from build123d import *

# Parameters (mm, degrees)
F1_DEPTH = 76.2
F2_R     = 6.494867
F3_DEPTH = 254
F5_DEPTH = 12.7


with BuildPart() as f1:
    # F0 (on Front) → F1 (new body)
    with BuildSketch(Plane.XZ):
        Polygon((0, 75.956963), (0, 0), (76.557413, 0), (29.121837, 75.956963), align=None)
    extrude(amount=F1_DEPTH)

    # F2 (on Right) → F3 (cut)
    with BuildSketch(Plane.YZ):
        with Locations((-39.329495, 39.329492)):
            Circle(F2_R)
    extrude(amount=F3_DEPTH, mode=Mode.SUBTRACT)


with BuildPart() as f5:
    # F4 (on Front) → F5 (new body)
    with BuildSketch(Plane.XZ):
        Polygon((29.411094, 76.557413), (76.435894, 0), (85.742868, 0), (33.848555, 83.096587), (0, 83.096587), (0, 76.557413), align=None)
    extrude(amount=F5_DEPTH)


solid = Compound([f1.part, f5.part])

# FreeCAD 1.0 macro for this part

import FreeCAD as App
import Part
import Sketcher
Q = App.Units.Quantity


def add_polygon(sketch, points):
    """Adds a closed chain of lines whose ends are joined by coincident constraints."""
    first, n = sketch.GeometryCount, len(points)
    for a, b in zip(points, points[1:] + points[:1]):
        sketch.addGeometry(Part.LineSegment(App.Vector(*a, 0), App.Vector(*b, 0)), False)
    for i in range(n):
        sketch.addConstraint(Sketcher.Constraint("Coincident", first + i, 2, first + (i + 1) % n, 1))

doc = App.newDocument("Part")
body = doc.addObject("PartDesign::Body", "Body")

sketch1 = doc.addObject("Sketcher::SketchObject", "Sketch")
body.addObject(sketch1)
sketch1.AttachmentSupport = (doc.XZ_Plane, [""])
sketch1.MapMode = "FlatFace"
add_polygon(sketch1, [(0, 76), (0, 0), (77, 0), (29, 76)])
sketch1.addConstraint(Sketcher.Constraint("Vertical", 0))
sketch1.addConstraint(Sketcher.Constraint("Horizontal", 1))
sketch1.addConstraint(Sketcher.Constraint("Horizontal", 3))
sketch1.addConstraint(Sketcher.Constraint("Coincident", 0, 2, -1, 1))
sketch1.addConstraint(Sketcher.Constraint("DistanceX", 1, 1, 1, 2, Q("76.557413 mm")))
sketch1.addConstraint(Sketcher.Constraint("DistanceX", 3, 2, 3, 1, Q("29.121837 mm")))
sketch1.addConstraint(Sketcher.Constraint("DistanceY", 0, 2, 0, 1, Q("75.956963 mm")))
pad1 = doc.addObject("PartDesign::Pad", "Pad")
body.addObject(pad1)
pad1.Profile = sketch1
pad1.Length = Q("3 in")

sketch2 = doc.addObject("Sketcher::SketchObject", "Sketch001")
body.addObject(sketch2)
sketch2.AttachmentSupport = (doc.YZ_Plane, [""])
sketch2.MapMode = "FlatFace"
sketch2.addGeometry(Part.Circle(App.Vector(-39, 39, 0), App.Vector(0, 0, 1), 6), False)
sketch2.addConstraint(Sketcher.Constraint("Diameter", 0, Q("12.989734 mm")))
sketch2.addConstraint(Sketcher.Constraint("DistanceX", 0, 3, -1, 1, Q("39.329495 mm")))
sketch2.addConstraint(Sketcher.Constraint("DistanceY", -1, 1, 0, 3, Q("39.329492 mm")))
pocket1 = doc.addObject("PartDesign::Pocket", "Pocket")
body.addObject(pocket1)
pocket1.Profile = sketch2
pocket1.Length = Q("10 in")
pocket1.Reversed = True
body2 = doc.addObject("PartDesign::Body", "Body001")

sketch3 = doc.addObject("Sketcher::SketchObject", "Sketch002")
body2.addObject(sketch3)
sketch3.AttachmentSupport = (doc.getObject("XZ_Plane001"), [""])
sketch3.MapMode = "FlatFace"
add_polygon(sketch3, [(29, 77), (76, 0), (86, 0), (34, 83), (0, 83), (0, 77)])
sketch3.addConstraint(Sketcher.Constraint("Horizontal", 1))
sketch3.addConstraint(Sketcher.Constraint("Horizontal", 3))
sketch3.addConstraint(Sketcher.Constraint("Vertical", 4))
sketch3.addConstraint(Sketcher.Constraint("Horizontal", 5))
sketch3.addConstraint(Sketcher.Constraint("PointOnObject", 0, 2, -1))
sketch3.addConstraint(Sketcher.Constraint("PointOnObject", 3, 2, -2))
sketch3.addConstraint(Sketcher.Constraint("Angle", 0, Q("-58.439995 deg")))
sketch3.addConstraint(Sketcher.Constraint("Distance", 2, Q("97.969702 mm")))
sketch3.addConstraint(Sketcher.Constraint("DistanceX", 5, 2, 0, 2, Q("47.0248 mm")))
sketch3.addConstraint(Sketcher.Constraint("DistanceX", 1, 1, 1, 2, Q("9.306974 mm")))
sketch3.addConstraint(Sketcher.Constraint("DistanceX", 3, 2, 3, 1, Q("33.848555 mm")))
sketch3.addConstraint(Sketcher.Constraint("DistanceX", 5, 1, 5, 2, Q("29.411094 mm")))
pad2 = doc.addObject("PartDesign::Pad", "Pad001")
body2.addObject(pad2)
pad2.Profile = sketch3
pad2.Length = Q("0.5 in")

doc.recompute()
